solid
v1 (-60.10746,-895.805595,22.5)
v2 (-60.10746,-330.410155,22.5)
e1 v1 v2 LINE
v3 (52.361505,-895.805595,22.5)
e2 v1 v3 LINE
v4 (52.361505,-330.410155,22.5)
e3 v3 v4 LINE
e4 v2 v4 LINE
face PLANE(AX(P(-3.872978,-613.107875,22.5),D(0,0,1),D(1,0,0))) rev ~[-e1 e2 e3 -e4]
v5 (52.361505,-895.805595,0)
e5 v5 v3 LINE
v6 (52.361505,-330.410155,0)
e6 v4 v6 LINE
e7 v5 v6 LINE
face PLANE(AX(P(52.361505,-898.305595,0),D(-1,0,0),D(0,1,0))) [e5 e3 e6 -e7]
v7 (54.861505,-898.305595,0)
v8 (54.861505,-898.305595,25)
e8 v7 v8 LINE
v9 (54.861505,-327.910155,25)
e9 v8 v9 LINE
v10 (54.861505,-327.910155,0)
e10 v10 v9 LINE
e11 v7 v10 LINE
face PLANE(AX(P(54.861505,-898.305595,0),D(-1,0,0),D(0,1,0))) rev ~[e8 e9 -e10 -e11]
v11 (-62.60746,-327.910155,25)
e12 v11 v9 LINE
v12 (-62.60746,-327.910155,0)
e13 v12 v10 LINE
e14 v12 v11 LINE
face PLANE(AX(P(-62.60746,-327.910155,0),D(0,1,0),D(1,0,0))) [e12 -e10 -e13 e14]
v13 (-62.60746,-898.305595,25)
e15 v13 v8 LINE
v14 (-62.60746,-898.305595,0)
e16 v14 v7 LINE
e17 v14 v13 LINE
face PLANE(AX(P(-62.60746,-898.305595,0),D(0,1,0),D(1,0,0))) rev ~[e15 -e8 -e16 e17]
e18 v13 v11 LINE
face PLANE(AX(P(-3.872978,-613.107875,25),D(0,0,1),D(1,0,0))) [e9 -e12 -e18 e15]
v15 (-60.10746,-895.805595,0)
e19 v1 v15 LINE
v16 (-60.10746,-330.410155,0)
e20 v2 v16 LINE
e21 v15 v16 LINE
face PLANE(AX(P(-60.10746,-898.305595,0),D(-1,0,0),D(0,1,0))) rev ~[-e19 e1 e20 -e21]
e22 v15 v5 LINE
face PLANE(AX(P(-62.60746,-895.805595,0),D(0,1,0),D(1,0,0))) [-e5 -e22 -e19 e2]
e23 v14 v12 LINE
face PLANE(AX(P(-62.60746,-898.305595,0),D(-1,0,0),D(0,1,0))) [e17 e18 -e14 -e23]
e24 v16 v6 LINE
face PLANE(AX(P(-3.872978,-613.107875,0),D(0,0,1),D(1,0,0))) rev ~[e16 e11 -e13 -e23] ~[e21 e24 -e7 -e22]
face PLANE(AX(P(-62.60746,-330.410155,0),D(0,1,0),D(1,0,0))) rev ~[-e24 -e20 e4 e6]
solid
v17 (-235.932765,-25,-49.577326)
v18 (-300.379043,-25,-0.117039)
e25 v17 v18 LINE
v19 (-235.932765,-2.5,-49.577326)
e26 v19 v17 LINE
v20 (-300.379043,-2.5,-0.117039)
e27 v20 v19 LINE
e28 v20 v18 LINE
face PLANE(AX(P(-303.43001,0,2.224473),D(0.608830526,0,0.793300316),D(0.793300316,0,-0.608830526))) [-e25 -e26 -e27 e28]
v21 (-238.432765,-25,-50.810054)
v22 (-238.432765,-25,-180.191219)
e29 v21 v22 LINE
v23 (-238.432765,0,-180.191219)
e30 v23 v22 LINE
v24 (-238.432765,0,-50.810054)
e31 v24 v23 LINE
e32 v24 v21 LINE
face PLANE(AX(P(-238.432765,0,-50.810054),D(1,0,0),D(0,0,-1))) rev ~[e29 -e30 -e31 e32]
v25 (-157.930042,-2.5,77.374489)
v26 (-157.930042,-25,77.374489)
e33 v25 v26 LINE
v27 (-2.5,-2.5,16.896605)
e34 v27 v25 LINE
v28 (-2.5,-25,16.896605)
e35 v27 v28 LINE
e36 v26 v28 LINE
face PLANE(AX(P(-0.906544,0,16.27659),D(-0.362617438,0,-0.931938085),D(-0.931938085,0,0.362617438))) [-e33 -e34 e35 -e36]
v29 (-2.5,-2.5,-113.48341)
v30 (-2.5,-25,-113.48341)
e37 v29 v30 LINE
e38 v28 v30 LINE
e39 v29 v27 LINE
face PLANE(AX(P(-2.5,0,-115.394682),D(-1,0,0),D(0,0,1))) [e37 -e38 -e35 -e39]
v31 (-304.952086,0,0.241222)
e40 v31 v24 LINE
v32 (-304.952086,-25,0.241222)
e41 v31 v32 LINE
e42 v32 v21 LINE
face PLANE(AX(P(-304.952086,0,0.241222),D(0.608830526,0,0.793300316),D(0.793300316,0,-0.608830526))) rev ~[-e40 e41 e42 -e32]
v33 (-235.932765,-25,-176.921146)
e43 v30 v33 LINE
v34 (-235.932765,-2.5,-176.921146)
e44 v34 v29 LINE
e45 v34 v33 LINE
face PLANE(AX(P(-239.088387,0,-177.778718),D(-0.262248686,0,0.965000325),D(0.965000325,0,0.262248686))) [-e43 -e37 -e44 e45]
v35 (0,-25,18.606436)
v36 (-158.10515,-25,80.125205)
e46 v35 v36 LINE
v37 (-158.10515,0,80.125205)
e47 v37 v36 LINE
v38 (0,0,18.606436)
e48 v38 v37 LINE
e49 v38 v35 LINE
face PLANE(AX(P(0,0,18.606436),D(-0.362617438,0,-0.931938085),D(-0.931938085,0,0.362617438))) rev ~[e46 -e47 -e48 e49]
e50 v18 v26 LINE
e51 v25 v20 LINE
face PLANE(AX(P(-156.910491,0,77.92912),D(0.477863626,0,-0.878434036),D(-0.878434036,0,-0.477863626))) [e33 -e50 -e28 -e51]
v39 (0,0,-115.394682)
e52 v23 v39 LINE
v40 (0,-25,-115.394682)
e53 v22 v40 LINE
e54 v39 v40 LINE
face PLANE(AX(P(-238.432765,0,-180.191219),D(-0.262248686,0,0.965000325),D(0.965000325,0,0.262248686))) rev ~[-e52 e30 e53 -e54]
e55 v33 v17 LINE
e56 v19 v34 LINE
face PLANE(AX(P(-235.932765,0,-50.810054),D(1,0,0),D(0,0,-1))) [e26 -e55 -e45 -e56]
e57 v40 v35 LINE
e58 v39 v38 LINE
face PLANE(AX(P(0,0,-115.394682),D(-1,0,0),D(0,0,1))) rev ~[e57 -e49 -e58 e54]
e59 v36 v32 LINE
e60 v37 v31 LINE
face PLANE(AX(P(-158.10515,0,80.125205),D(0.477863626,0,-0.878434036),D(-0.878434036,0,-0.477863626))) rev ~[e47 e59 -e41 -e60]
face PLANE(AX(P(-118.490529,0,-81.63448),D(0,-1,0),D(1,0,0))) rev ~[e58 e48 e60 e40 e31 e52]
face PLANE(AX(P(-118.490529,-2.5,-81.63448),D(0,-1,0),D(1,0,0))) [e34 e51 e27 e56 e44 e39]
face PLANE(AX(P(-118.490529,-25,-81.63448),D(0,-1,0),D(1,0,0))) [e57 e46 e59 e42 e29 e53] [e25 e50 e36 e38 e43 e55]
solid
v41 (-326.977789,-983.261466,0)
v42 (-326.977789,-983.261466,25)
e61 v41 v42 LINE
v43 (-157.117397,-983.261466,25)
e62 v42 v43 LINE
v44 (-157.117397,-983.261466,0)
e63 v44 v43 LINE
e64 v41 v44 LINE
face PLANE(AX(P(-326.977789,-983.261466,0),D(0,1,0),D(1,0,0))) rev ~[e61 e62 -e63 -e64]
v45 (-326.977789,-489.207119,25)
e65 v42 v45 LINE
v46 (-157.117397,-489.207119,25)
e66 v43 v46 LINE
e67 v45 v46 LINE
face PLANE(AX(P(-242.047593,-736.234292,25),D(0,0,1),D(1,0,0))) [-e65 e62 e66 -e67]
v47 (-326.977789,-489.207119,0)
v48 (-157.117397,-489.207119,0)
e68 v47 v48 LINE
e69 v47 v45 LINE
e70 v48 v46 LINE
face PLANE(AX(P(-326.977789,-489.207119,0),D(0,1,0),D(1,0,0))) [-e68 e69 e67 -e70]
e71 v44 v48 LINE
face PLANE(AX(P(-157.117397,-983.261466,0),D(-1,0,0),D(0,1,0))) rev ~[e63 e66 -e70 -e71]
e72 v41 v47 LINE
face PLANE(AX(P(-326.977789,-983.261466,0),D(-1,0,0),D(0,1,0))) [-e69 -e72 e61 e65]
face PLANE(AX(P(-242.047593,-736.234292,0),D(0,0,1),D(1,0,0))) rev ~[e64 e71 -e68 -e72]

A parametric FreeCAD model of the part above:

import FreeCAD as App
import Part
import Sketcher
Q = App.Units.Quantity


def faces_at(feature, points):
    """Names of the faces that lie closest to the given points."""
    faces = feature.Shape.Faces
    near = lambda p: min(range(len(faces)), key=lambda i: faces[i].distToShape(Part.Vertex(*p))[0])
    return sorted({f"Face{near(p) + 1}" for p in points})


def add_polygon(sketch, points):
    """Adds a closed chain of lines whose ends are joined by coincident constraints."""
    first, n = sketch.GeometryCount, len(points)
    for a, b in zip(points, points[1:] + points[:1]):
        sketch.addGeometry(Part.LineSegment(App.Vector(*a, 0), App.Vector(*b, 0)), False)
    for i in range(n):
        sketch.addConstraint(Sketcher.Constraint("Coincident", first + i, 2, first + (i + 1) % n, 1))

doc = App.newDocument("Part")
body = doc.addObject("PartDesign::Body", "Body")

# Sketch on XZ plane
sketch1 = doc.addObject("Sketcher::SketchObject", "Sketch")
body.addObject(sketch1)
sketch1.AttachmentSupport = (doc.XZ_Plane, [""])
sketch1.MapMode = "FlatFace"
add_polygon(sketch1, [(-238, -51), (-238, -180), (0, -115), (0, 19), (-158, 80), (-305, 0)])  # lines 0-5
sketch1.addConstraint([
    Sketcher.Constraint("Vertical", 0),
    Sketcher.Constraint("Vertical", 2),
    Sketcher.Constraint("PointOnObject", 1, 2, -2),
    Sketcher.Constraint("Distance", 3, Q("169.651989 mm")),
    Sketcher.Constraint("DistanceY", 0, 2, 0, 1, Q("129.381165 mm")),
    Sketcher.Constraint("DistanceY", 2, 1, 2, 2, Q("134.001117 mm")),
    Sketcher.Constraint("DistanceY", 0, 2, -1, 1, Q("180.191219 mm")),
    Sketcher.Constraint("DistanceY", 1, 2, -1, 1, Q("115.394682 mm")),
    Sketcher.Constraint("DistanceX", 3, 2, -1, 1, Q("158.10515 mm")),
    Sketcher.Constraint("DistanceX", 4, 2, 0, 2, Q("66.519321 mm")),
    Sketcher.Constraint("DistanceY", 0, 2, 4, 2, Q("180.432441 mm")),
    Sketcher.Constraint("Distance", 1, Q("247.080502 mm")),
])
pad1 = doc.addObject("PartDesign::Pad", "Pad")
body.addObject(pad1)
pad1.Profile = sketch1
pad1.Length = 25
doc.recompute()

thickness = doc.addObject("PartDesign::Thickness", "Thickness")
body.addObject(thickness)
thickness.Base = (pad1, faces_at(pad1, [(-152.476, -25, -50.033)]))
thickness.Value = 2.5
thickness.Reversed = True
thickness.Join = "Intersection"
body2 = doc.addObject("PartDesign::Body", "Body001")

# Sketch on XY plane
sketch2 = doc.addObject("Sketcher::SketchObject", "Sketch001")
body2.addObject(sketch2)
sketch2.AttachmentSupport = (doc.getObject("XY_Plane001"), [""])
sketch2.MapMode = "FlatFace"
add_polygon(sketch2, [(-63, -328), (-63, -898), (55, -898), (55, -328)])  # lines 0-3
sketch2.addConstraint([
    Sketcher.Constraint("Vertical", 0),
    Sketcher.Constraint("Horizontal", 1),
    Sketcher.Constraint("Vertical", 2),
    Sketcher.Constraint("Horizontal", 3),
    Sketcher.Constraint("DistanceY", 0, 2, 0, 1, Q("570.39544 mm")),
    Sketcher.Constraint("DistanceX", 1, 1, 1, 2, Q("117.468964 mm")),
    Sketcher.Constraint("DistanceX", 0, 2, -1, 1, Q("62.60746 mm")),
    Sketcher.Constraint("DistanceY", 0, 2, -1, 1, Q("898.305595 mm")),
])
pad2 = doc.addObject("PartDesign::Pad", "Pad001")
body2.addObject(pad2)
pad2.Profile = sketch2
pad2.Length = 25
doc.recompute()

thickness2 = doc.addObject("PartDesign::Thickness", "Thickness001")
body2.addObject(thickness2)
thickness2.Base = (pad2, faces_at(pad2, [(-3.873, -613.108, 0)]))
thickness2.Value = 2.5
thickness2.Reversed = True
thickness2.Join = "Arc"
body3 = doc.addObject("PartDesign::Body", "Body002")

# Sketch on XY plane
sketch3 = doc.addObject("Sketcher::SketchObject", "Sketch002")
body3.addObject(sketch3)
sketch3.AttachmentSupport = (doc.getObject("XY_Plane002"), [""])
sketch3.MapMode = "FlatFace"
add_polygon(sketch3, [(-327, -489), (-327, -983), (-157, -983), (-157, -489)])  # lines 0-3
sketch3.addConstraint([
    Sketcher.Constraint("Vertical", 0),
    Sketcher.Constraint("Horizontal", 1),
    Sketcher.Constraint("Vertical", 2),
    Sketcher.Constraint("Horizontal", 3),
    Sketcher.Constraint("DistanceX", 1, 1, 1, 2, Q("169.860393 mm")),
    Sketcher.Constraint("DistanceY", 0, 2, 0, 1, Q("494.054347 mm")),
    Sketcher.Constraint("DistanceX", 0, 2, -1, 1, Q("326.977789 mm")),
    Sketcher.Constraint("DistanceY", 2, 2, -1, 1, Q("489.207119 mm")),
])
pad3 = doc.addObject("PartDesign::Pad", "Pad002")
body3.addObject(pad3)
pad3.Profile = sketch3
pad3.Length = 25

doc.recompute()
